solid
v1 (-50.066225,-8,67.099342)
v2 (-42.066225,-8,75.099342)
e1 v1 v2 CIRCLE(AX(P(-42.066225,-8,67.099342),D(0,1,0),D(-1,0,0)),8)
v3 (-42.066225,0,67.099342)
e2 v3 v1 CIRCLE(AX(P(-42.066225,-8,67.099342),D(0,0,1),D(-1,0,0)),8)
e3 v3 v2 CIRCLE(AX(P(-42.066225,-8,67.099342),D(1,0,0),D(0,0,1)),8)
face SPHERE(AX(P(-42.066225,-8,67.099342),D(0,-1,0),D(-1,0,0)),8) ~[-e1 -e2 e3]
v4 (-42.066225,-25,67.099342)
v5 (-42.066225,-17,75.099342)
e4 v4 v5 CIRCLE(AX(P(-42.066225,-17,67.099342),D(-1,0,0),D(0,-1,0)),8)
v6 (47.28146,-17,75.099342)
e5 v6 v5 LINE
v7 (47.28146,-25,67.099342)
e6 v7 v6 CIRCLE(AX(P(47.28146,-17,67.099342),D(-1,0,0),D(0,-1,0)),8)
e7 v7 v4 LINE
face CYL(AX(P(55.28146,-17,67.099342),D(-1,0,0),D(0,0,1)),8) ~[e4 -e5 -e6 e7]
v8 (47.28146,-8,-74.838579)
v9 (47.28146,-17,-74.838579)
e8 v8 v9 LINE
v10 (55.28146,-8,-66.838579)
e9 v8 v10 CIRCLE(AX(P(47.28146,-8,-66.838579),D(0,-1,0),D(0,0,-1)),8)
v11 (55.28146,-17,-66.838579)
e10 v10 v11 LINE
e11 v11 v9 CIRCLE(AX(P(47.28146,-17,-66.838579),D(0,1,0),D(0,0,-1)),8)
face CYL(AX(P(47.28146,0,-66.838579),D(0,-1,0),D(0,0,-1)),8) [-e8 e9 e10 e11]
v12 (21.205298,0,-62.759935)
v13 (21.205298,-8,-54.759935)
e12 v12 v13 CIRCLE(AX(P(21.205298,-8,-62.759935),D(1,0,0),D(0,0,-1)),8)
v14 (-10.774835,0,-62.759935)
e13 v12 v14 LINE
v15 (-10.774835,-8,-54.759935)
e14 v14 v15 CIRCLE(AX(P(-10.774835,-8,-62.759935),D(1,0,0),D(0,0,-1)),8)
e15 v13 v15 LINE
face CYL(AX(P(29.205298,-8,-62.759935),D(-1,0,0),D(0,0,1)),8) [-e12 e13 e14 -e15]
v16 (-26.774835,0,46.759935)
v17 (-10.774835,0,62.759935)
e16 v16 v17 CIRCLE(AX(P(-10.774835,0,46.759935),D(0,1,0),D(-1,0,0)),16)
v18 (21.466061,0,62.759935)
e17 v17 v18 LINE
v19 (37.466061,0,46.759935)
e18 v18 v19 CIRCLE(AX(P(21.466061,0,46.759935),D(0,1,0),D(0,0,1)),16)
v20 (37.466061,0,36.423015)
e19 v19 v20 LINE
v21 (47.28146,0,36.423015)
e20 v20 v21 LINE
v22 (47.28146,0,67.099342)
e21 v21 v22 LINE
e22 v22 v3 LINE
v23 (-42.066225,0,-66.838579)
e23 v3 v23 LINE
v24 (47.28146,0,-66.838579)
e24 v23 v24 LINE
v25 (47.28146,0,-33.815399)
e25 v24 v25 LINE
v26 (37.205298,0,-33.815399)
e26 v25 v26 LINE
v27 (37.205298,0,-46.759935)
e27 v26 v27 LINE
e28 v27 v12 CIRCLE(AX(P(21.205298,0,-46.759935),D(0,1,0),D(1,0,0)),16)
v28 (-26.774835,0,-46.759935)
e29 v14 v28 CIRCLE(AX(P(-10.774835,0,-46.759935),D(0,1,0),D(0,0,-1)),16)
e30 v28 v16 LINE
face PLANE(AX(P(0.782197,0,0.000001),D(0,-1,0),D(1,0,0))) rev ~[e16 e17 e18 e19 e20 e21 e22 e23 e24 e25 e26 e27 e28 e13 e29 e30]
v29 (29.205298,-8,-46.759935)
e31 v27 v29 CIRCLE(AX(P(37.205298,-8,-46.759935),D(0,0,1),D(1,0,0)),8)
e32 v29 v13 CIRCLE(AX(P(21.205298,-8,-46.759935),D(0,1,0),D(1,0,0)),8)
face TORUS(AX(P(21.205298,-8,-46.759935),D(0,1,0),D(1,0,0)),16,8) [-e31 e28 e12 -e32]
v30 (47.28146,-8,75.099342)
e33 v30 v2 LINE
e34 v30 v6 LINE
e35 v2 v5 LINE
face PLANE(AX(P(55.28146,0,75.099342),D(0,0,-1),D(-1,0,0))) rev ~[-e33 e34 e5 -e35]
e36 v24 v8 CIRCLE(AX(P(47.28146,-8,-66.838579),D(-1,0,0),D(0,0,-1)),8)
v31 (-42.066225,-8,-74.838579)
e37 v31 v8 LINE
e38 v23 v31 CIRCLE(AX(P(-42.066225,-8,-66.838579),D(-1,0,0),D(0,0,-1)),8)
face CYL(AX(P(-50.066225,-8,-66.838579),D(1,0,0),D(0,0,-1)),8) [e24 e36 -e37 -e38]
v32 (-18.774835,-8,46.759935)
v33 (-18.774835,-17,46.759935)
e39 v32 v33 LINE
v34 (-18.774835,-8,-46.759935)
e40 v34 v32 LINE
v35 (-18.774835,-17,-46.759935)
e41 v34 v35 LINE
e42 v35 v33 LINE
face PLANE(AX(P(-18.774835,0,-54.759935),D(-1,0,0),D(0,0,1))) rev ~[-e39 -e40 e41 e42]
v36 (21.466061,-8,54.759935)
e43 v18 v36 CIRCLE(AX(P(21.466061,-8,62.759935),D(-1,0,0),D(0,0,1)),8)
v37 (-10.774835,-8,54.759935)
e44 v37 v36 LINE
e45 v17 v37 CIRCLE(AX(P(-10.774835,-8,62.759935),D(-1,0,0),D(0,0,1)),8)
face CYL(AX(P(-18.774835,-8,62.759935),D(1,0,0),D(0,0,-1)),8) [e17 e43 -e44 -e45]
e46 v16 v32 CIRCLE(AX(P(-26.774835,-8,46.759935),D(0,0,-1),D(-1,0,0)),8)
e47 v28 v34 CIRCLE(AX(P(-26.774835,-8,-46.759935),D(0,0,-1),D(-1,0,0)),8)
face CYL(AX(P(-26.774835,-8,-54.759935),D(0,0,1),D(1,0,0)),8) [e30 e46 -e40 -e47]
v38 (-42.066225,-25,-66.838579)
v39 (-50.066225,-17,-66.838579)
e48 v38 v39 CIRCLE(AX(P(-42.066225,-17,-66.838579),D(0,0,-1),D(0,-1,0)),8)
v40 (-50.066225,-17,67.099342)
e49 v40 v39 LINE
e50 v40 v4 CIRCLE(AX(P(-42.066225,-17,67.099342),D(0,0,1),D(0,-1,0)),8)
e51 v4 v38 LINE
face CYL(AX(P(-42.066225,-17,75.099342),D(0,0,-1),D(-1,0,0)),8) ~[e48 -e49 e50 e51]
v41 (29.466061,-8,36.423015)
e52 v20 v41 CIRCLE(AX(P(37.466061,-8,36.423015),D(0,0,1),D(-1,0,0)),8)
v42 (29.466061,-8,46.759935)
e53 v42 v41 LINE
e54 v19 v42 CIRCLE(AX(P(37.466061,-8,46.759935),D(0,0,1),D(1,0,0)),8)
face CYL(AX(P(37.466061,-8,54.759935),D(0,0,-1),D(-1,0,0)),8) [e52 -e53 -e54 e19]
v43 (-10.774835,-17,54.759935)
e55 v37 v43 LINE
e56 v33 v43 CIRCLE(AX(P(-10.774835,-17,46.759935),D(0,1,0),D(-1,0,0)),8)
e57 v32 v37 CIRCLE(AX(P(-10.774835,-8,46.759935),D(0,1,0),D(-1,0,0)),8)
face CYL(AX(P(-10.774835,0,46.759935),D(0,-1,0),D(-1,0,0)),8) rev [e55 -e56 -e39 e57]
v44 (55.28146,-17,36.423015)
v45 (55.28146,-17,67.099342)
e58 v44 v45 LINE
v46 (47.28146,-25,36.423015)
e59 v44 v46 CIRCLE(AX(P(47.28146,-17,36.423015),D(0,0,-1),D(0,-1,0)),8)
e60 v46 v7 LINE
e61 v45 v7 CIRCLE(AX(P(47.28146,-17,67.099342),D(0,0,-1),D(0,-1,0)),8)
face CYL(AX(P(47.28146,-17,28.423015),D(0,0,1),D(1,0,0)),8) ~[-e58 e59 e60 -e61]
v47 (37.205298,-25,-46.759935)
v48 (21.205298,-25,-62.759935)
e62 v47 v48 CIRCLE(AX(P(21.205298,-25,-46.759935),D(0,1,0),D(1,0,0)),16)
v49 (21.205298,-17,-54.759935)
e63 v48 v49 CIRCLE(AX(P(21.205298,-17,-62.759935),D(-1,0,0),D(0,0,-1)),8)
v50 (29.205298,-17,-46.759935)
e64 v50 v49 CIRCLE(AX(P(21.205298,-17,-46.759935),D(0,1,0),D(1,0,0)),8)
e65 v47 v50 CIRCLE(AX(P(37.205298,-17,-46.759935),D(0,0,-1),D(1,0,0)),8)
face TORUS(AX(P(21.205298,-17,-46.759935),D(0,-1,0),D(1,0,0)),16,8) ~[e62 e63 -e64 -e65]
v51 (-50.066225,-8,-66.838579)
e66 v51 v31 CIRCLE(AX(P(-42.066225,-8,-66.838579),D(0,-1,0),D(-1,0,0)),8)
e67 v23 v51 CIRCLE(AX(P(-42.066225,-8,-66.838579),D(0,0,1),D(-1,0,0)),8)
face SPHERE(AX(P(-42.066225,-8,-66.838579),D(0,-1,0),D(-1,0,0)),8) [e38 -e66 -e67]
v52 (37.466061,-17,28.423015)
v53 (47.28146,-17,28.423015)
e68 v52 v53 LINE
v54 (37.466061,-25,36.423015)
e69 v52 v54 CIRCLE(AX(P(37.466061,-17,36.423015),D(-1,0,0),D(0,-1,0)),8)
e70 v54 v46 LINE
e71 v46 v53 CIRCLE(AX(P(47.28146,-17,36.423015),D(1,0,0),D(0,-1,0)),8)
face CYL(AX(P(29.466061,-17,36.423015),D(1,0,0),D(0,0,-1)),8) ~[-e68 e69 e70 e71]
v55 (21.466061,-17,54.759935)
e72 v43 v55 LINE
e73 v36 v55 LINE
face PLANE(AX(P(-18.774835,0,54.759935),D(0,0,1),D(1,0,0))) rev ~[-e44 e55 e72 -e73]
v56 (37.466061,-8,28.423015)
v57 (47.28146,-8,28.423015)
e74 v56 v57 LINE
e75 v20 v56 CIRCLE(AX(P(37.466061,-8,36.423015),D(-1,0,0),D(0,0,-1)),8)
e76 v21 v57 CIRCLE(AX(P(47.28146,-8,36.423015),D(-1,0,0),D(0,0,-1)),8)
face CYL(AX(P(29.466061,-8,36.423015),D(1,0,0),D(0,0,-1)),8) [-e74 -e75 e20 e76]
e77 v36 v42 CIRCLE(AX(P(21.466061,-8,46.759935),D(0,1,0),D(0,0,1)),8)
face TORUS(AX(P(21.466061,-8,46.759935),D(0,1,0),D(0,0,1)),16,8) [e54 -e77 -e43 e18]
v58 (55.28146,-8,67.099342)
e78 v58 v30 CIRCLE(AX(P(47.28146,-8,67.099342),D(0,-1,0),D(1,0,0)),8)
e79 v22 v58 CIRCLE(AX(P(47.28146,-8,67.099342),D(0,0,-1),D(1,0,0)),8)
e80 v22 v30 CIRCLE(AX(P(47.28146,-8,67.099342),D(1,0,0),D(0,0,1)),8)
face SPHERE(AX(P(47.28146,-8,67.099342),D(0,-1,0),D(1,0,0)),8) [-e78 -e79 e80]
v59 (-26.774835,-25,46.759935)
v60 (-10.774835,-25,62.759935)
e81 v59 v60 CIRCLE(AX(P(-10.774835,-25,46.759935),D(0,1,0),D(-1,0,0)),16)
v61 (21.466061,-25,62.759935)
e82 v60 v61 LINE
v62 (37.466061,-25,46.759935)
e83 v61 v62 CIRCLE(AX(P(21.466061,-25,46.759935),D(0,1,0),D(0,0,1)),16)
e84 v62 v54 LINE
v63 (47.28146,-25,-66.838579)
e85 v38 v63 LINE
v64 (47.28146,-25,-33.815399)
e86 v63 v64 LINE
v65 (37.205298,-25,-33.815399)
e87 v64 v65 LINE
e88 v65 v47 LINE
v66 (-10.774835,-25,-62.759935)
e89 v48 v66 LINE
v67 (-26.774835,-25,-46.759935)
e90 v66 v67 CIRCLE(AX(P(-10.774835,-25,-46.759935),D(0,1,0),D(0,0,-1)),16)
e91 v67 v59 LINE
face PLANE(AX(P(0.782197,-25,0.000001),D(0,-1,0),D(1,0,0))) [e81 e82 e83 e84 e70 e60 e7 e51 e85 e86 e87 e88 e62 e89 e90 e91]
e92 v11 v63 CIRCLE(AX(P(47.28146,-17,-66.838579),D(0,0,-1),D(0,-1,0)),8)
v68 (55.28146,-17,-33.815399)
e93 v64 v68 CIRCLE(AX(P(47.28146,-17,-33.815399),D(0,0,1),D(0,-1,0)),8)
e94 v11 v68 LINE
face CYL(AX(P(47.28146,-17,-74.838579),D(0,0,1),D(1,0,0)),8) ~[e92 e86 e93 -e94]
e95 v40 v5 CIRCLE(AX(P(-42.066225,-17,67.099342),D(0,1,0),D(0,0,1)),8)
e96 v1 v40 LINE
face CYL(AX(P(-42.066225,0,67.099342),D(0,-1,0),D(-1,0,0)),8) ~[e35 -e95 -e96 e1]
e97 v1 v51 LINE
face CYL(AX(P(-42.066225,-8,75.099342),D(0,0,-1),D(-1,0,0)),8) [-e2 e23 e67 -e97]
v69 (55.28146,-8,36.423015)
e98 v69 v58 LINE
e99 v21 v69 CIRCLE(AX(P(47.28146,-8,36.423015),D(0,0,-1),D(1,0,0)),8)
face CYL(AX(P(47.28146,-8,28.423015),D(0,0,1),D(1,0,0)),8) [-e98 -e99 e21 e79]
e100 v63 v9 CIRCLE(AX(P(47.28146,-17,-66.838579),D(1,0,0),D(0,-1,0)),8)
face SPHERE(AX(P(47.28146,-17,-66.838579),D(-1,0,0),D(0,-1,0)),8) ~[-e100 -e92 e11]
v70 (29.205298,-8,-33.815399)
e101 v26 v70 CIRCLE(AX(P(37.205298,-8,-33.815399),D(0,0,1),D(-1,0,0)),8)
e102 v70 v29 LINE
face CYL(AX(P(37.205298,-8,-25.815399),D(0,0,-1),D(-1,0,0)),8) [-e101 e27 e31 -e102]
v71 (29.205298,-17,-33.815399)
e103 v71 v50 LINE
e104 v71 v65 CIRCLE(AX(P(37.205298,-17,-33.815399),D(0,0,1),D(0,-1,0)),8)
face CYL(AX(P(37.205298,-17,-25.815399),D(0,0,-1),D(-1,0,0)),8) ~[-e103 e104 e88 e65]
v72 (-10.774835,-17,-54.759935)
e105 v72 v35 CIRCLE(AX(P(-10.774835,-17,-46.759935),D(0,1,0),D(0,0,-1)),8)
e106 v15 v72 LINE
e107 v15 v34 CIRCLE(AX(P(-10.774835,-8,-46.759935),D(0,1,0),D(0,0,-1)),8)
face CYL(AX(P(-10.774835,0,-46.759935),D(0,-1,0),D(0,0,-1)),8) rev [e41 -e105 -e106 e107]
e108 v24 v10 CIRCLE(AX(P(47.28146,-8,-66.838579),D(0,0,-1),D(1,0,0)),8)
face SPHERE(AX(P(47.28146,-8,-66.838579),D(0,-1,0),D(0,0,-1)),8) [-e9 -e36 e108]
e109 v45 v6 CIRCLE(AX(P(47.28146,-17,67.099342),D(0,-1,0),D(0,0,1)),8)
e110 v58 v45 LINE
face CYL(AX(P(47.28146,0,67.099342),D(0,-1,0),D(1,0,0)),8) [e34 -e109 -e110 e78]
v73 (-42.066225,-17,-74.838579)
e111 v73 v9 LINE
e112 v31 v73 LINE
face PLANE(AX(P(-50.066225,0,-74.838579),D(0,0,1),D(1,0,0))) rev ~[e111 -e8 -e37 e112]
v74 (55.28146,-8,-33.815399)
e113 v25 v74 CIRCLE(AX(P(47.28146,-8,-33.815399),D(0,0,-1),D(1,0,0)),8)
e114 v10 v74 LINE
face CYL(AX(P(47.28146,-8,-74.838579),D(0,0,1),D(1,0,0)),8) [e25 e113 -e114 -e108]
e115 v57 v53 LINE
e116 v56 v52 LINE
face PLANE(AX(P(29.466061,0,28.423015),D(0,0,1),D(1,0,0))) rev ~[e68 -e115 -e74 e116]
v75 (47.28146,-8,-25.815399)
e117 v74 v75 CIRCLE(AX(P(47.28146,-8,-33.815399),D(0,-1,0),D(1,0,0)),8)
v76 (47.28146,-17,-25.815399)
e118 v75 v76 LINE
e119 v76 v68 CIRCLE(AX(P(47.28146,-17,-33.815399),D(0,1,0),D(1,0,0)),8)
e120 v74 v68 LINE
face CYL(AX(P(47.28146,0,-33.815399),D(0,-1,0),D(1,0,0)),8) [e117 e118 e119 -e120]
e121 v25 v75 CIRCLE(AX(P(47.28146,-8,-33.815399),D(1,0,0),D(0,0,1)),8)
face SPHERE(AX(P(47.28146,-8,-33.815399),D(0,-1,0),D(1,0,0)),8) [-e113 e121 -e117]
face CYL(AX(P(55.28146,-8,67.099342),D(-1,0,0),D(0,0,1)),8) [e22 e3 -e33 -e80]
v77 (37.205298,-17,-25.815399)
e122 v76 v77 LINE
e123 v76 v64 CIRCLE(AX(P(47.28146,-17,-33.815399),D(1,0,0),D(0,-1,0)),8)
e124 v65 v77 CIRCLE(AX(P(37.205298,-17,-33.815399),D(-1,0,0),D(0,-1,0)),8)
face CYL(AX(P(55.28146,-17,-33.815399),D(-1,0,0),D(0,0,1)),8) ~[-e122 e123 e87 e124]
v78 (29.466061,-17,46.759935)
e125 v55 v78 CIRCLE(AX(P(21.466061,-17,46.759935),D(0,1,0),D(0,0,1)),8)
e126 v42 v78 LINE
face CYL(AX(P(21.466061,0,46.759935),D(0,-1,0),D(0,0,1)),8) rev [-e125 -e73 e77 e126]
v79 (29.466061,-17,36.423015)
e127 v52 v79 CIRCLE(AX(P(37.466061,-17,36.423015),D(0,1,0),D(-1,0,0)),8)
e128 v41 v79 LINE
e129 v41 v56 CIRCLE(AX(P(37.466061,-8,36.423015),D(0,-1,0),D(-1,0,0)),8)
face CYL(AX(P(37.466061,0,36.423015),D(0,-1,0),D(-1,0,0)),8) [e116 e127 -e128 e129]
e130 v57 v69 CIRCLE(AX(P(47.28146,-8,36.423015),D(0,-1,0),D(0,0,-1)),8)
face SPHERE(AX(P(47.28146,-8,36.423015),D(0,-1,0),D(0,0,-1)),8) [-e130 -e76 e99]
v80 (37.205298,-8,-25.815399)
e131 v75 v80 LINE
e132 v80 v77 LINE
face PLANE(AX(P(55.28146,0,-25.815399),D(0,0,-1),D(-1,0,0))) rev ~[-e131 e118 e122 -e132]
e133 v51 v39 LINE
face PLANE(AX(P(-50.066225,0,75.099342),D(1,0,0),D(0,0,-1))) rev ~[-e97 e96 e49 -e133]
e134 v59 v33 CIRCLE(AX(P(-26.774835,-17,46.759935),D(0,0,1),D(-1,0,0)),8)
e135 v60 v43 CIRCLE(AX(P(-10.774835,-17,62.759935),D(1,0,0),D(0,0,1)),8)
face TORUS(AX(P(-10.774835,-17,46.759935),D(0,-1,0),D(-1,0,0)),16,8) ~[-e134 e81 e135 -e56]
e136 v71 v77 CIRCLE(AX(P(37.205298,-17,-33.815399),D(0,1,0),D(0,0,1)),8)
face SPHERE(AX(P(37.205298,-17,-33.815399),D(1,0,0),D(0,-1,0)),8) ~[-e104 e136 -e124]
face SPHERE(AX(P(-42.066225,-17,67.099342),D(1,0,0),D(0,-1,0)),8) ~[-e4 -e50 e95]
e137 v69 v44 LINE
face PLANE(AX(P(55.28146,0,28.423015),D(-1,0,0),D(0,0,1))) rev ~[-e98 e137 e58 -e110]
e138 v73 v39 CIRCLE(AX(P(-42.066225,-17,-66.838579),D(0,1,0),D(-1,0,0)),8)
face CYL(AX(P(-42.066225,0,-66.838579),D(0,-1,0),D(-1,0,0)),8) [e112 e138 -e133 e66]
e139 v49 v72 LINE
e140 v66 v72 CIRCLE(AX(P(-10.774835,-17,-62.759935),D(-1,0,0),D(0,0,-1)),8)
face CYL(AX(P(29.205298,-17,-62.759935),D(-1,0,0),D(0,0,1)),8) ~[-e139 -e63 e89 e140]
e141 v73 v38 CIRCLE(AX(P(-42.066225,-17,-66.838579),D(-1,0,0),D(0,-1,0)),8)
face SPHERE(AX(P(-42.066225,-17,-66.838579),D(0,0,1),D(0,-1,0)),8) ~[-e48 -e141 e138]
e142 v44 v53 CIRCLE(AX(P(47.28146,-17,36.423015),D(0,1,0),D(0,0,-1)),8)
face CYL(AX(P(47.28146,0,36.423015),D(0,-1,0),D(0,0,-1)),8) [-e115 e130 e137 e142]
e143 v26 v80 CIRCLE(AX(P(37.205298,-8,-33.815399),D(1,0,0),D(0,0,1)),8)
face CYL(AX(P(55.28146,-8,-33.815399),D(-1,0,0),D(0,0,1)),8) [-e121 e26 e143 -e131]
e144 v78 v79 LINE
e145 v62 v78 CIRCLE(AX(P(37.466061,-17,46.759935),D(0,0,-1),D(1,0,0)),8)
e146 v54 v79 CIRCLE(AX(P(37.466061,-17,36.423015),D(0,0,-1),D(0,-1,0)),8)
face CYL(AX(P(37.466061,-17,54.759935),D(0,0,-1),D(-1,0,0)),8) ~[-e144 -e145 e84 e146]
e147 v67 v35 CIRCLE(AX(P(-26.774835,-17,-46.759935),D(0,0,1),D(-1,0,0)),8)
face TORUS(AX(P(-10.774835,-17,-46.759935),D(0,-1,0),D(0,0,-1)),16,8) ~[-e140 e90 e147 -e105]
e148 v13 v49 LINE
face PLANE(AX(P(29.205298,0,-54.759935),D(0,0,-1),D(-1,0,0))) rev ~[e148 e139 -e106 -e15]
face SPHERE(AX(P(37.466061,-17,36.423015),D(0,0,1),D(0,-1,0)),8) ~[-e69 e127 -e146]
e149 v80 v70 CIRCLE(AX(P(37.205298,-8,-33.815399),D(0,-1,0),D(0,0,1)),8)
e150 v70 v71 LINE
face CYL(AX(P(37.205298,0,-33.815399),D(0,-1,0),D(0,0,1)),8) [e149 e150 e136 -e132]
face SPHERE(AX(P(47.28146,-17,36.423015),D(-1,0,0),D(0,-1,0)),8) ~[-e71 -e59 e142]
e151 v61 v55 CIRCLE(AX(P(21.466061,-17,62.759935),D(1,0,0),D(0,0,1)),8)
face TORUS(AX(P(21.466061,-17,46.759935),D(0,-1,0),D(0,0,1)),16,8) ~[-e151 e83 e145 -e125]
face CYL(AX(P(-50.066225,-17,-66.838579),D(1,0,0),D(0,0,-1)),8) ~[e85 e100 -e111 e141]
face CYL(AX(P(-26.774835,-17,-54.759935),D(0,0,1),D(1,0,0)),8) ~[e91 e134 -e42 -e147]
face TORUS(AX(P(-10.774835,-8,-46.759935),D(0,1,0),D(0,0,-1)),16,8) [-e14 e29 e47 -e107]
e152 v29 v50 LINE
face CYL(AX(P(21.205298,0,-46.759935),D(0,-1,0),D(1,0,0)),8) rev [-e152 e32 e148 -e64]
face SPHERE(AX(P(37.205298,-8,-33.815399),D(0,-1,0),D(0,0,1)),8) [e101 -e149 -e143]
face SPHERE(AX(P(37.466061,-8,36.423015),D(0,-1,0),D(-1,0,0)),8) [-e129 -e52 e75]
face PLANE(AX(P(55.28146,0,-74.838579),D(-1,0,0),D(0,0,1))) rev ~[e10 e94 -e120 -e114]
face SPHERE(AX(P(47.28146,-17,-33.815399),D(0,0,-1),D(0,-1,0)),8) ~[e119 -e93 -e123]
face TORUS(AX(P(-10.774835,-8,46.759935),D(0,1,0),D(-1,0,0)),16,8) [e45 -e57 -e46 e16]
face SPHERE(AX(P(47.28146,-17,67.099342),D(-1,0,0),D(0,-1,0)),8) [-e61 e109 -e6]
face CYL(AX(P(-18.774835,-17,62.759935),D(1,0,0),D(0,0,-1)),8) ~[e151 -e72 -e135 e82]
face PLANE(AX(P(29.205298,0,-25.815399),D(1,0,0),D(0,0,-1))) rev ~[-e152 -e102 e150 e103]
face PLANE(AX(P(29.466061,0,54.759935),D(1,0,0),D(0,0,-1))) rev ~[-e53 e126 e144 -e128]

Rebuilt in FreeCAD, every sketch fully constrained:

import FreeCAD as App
import Part
import Sketcher

doc = App.newDocument("Part")
body = doc.addObject("PartDesign::Body", "Body")

# Sketch on XZ plane
sketch1 = body.newObject("Sketcher::SketchObject", "Sketch")
sketch1.AttachmentSupport = (doc.getObject("XZ_Plane"), [""])
sketch1.MapMode = "FlatFace"
sketch1.addGeometry(Part.LineSegment(App.Vector(-50, 75, 0), App.Vector(-50, -75, 0)), False)
sketch1.addGeometry(Part.LineSegment(App.Vector(-50, -75, 0), App.Vector(55, -75, 0)), False)
sketch1.addGeometry(Part.LineSegment(App.Vector(55, -75, 0), App.Vector(55, -26, 0)), False)
sketch1.addGeometry(Part.LineSegment(App.Vector(55, -26, 0), App.Vector(29, -26, 0)), False)
sketch1.addGeometry(Part.LineSegment(App.Vector(29, -26, 0), App.Vector(29, -55, 0)), False)
sketch1.addGeometry(Part.LineSegment(App.Vector(29, -55, 0), App.Vector(-19, -55, 0)), False)
sketch1.addGeometry(Part.LineSegment(App.Vector(-19, -55, 0), App.Vector(-19, 55, 0)), False)
sketch1.addGeometry(Part.LineSegment(App.Vector(-19, 55, 0), App.Vector(29, 55, 0)), False)
sketch1.addGeometry(Part.LineSegment(App.Vector(29, 55, 0), App.Vector(29, 28, 0)), False)
sketch1.addGeometry(Part.LineSegment(App.Vector(29, 28, 0), App.Vector(55, 28, 0)), False)
sketch1.addGeometry(Part.LineSegment(App.Vector(55, 28, 0), App.Vector(55, 75, 0)), False)
sketch1.addGeometry(Part.LineSegment(App.Vector(55, 75, 0), App.Vector(-50, 75, 0)), False)
sketch1.addConstraint(Sketcher.Constraint("Coincident", 0, 2, 1, 1))
sketch1.addConstraint(Sketcher.Constraint("Coincident", 1, 2, 2, 1))
sketch1.addConstraint(Sketcher.Constraint("Coincident", 2, 2, 3, 1))
sketch1.addConstraint(Sketcher.Constraint("Coincident", 3, 2, 4, 1))
sketch1.addConstraint(Sketcher.Constraint("Coincident", 4, 2, 5, 1))
sketch1.addConstraint(Sketcher.Constraint("Coincident", 5, 2, 6, 1))
sketch1.addConstraint(Sketcher.Constraint("Coincident", 6, 2, 7, 1))
sketch1.addConstraint(Sketcher.Constraint("Coincident", 7, 2, 8, 1))
sketch1.addConstraint(Sketcher.Constraint("Coincident", 8, 2, 9, 1))
sketch1.addConstraint(Sketcher.Constraint("Coincident", 9, 2, 10, 1))
sketch1.addConstraint(Sketcher.Constraint("Coincident", 10, 2, 11, 1))
sketch1.addConstraint(Sketcher.Constraint("Coincident", 11, 2, 0, 1))
sketch1.addConstraint(Sketcher.Constraint("Vertical", 0))
sketch1.addConstraint(Sketcher.Constraint("Horizontal", 1))
sketch1.addConstraint(Sketcher.Constraint("Vertical", 2))
sketch1.addConstraint(Sketcher.Constraint("Horizontal", 3))
sketch1.addConstraint(Sketcher.Constraint("Vertical", 4))
sketch1.addConstraint(Sketcher.Constraint("Horizontal", 5))
sketch1.addConstraint(Sketcher.Constraint("Vertical", 6))
sketch1.addConstraint(Sketcher.Constraint("Horizontal", 7))
sketch1.addConstraint(Sketcher.Constraint("Vertical", 8))
sketch1.addConstraint(Sketcher.Constraint("Horizontal", 9))
sketch1.addConstraint(Sketcher.Constraint("Vertical", 10))
sketch1.addConstraint(Sketcher.Constraint("Horizontal", 11))
sketch1.addConstraint(Sketcher.Constraint("Vertical", 2, 2, 9, 2))
sketch1.addConstraint(Sketcher.Constraint("DistanceX", 9, 1, 9, 2, 25.815399))
sketch1.addConstraint(Sketcher.Constraint("DistanceY", 0, 2, 0, 1, 149.937921))
sketch1.addConstraint(Sketcher.Constraint("DistanceY", 2, 1, 2, 2, 49.02318))
sketch1.addConstraint(Sketcher.Constraint("DistanceY", 6, 1, 6, 2, 109.51987))
sketch1.addConstraint(Sketcher.Constraint("DistanceY", 8, 2, 8, 1, 26.33692))
sketch1.addConstraint(Sketcher.Constraint("DistanceY", 2, 2, -1, 1, 25.815399))
sketch1.addConstraint(Sketcher.Constraint("DistanceX", 1, 1, 1, 2, 105.347685))
sketch1.addConstraint(Sketcher.Constraint("DistanceX", 3, 2, 3, 1, 26.076162))
sketch1.addConstraint(Sketcher.Constraint("DistanceX", 5, 2, 5, 1, 47.980133))
sketch1.addConstraint(Sketcher.Constraint("DistanceY", 4, 2, 4, 1, 28.944536))
sketch1.addConstraint(Sketcher.Constraint("DistanceX", -1, 1, 1, 2, 55.28146))
pad1 = body.newObject("PartDesign::Pad", "Pad")
pad1.Profile = sketch1
pad1.Length = 25
doc.recompute()

fillet = body.newObject("PartDesign::Fillet", "Fillet")
fillet.Base = (pad1, ["Edge1"])
fillet.UseAllEdges = True
fillet.Radius = 8

doc.recompute()
